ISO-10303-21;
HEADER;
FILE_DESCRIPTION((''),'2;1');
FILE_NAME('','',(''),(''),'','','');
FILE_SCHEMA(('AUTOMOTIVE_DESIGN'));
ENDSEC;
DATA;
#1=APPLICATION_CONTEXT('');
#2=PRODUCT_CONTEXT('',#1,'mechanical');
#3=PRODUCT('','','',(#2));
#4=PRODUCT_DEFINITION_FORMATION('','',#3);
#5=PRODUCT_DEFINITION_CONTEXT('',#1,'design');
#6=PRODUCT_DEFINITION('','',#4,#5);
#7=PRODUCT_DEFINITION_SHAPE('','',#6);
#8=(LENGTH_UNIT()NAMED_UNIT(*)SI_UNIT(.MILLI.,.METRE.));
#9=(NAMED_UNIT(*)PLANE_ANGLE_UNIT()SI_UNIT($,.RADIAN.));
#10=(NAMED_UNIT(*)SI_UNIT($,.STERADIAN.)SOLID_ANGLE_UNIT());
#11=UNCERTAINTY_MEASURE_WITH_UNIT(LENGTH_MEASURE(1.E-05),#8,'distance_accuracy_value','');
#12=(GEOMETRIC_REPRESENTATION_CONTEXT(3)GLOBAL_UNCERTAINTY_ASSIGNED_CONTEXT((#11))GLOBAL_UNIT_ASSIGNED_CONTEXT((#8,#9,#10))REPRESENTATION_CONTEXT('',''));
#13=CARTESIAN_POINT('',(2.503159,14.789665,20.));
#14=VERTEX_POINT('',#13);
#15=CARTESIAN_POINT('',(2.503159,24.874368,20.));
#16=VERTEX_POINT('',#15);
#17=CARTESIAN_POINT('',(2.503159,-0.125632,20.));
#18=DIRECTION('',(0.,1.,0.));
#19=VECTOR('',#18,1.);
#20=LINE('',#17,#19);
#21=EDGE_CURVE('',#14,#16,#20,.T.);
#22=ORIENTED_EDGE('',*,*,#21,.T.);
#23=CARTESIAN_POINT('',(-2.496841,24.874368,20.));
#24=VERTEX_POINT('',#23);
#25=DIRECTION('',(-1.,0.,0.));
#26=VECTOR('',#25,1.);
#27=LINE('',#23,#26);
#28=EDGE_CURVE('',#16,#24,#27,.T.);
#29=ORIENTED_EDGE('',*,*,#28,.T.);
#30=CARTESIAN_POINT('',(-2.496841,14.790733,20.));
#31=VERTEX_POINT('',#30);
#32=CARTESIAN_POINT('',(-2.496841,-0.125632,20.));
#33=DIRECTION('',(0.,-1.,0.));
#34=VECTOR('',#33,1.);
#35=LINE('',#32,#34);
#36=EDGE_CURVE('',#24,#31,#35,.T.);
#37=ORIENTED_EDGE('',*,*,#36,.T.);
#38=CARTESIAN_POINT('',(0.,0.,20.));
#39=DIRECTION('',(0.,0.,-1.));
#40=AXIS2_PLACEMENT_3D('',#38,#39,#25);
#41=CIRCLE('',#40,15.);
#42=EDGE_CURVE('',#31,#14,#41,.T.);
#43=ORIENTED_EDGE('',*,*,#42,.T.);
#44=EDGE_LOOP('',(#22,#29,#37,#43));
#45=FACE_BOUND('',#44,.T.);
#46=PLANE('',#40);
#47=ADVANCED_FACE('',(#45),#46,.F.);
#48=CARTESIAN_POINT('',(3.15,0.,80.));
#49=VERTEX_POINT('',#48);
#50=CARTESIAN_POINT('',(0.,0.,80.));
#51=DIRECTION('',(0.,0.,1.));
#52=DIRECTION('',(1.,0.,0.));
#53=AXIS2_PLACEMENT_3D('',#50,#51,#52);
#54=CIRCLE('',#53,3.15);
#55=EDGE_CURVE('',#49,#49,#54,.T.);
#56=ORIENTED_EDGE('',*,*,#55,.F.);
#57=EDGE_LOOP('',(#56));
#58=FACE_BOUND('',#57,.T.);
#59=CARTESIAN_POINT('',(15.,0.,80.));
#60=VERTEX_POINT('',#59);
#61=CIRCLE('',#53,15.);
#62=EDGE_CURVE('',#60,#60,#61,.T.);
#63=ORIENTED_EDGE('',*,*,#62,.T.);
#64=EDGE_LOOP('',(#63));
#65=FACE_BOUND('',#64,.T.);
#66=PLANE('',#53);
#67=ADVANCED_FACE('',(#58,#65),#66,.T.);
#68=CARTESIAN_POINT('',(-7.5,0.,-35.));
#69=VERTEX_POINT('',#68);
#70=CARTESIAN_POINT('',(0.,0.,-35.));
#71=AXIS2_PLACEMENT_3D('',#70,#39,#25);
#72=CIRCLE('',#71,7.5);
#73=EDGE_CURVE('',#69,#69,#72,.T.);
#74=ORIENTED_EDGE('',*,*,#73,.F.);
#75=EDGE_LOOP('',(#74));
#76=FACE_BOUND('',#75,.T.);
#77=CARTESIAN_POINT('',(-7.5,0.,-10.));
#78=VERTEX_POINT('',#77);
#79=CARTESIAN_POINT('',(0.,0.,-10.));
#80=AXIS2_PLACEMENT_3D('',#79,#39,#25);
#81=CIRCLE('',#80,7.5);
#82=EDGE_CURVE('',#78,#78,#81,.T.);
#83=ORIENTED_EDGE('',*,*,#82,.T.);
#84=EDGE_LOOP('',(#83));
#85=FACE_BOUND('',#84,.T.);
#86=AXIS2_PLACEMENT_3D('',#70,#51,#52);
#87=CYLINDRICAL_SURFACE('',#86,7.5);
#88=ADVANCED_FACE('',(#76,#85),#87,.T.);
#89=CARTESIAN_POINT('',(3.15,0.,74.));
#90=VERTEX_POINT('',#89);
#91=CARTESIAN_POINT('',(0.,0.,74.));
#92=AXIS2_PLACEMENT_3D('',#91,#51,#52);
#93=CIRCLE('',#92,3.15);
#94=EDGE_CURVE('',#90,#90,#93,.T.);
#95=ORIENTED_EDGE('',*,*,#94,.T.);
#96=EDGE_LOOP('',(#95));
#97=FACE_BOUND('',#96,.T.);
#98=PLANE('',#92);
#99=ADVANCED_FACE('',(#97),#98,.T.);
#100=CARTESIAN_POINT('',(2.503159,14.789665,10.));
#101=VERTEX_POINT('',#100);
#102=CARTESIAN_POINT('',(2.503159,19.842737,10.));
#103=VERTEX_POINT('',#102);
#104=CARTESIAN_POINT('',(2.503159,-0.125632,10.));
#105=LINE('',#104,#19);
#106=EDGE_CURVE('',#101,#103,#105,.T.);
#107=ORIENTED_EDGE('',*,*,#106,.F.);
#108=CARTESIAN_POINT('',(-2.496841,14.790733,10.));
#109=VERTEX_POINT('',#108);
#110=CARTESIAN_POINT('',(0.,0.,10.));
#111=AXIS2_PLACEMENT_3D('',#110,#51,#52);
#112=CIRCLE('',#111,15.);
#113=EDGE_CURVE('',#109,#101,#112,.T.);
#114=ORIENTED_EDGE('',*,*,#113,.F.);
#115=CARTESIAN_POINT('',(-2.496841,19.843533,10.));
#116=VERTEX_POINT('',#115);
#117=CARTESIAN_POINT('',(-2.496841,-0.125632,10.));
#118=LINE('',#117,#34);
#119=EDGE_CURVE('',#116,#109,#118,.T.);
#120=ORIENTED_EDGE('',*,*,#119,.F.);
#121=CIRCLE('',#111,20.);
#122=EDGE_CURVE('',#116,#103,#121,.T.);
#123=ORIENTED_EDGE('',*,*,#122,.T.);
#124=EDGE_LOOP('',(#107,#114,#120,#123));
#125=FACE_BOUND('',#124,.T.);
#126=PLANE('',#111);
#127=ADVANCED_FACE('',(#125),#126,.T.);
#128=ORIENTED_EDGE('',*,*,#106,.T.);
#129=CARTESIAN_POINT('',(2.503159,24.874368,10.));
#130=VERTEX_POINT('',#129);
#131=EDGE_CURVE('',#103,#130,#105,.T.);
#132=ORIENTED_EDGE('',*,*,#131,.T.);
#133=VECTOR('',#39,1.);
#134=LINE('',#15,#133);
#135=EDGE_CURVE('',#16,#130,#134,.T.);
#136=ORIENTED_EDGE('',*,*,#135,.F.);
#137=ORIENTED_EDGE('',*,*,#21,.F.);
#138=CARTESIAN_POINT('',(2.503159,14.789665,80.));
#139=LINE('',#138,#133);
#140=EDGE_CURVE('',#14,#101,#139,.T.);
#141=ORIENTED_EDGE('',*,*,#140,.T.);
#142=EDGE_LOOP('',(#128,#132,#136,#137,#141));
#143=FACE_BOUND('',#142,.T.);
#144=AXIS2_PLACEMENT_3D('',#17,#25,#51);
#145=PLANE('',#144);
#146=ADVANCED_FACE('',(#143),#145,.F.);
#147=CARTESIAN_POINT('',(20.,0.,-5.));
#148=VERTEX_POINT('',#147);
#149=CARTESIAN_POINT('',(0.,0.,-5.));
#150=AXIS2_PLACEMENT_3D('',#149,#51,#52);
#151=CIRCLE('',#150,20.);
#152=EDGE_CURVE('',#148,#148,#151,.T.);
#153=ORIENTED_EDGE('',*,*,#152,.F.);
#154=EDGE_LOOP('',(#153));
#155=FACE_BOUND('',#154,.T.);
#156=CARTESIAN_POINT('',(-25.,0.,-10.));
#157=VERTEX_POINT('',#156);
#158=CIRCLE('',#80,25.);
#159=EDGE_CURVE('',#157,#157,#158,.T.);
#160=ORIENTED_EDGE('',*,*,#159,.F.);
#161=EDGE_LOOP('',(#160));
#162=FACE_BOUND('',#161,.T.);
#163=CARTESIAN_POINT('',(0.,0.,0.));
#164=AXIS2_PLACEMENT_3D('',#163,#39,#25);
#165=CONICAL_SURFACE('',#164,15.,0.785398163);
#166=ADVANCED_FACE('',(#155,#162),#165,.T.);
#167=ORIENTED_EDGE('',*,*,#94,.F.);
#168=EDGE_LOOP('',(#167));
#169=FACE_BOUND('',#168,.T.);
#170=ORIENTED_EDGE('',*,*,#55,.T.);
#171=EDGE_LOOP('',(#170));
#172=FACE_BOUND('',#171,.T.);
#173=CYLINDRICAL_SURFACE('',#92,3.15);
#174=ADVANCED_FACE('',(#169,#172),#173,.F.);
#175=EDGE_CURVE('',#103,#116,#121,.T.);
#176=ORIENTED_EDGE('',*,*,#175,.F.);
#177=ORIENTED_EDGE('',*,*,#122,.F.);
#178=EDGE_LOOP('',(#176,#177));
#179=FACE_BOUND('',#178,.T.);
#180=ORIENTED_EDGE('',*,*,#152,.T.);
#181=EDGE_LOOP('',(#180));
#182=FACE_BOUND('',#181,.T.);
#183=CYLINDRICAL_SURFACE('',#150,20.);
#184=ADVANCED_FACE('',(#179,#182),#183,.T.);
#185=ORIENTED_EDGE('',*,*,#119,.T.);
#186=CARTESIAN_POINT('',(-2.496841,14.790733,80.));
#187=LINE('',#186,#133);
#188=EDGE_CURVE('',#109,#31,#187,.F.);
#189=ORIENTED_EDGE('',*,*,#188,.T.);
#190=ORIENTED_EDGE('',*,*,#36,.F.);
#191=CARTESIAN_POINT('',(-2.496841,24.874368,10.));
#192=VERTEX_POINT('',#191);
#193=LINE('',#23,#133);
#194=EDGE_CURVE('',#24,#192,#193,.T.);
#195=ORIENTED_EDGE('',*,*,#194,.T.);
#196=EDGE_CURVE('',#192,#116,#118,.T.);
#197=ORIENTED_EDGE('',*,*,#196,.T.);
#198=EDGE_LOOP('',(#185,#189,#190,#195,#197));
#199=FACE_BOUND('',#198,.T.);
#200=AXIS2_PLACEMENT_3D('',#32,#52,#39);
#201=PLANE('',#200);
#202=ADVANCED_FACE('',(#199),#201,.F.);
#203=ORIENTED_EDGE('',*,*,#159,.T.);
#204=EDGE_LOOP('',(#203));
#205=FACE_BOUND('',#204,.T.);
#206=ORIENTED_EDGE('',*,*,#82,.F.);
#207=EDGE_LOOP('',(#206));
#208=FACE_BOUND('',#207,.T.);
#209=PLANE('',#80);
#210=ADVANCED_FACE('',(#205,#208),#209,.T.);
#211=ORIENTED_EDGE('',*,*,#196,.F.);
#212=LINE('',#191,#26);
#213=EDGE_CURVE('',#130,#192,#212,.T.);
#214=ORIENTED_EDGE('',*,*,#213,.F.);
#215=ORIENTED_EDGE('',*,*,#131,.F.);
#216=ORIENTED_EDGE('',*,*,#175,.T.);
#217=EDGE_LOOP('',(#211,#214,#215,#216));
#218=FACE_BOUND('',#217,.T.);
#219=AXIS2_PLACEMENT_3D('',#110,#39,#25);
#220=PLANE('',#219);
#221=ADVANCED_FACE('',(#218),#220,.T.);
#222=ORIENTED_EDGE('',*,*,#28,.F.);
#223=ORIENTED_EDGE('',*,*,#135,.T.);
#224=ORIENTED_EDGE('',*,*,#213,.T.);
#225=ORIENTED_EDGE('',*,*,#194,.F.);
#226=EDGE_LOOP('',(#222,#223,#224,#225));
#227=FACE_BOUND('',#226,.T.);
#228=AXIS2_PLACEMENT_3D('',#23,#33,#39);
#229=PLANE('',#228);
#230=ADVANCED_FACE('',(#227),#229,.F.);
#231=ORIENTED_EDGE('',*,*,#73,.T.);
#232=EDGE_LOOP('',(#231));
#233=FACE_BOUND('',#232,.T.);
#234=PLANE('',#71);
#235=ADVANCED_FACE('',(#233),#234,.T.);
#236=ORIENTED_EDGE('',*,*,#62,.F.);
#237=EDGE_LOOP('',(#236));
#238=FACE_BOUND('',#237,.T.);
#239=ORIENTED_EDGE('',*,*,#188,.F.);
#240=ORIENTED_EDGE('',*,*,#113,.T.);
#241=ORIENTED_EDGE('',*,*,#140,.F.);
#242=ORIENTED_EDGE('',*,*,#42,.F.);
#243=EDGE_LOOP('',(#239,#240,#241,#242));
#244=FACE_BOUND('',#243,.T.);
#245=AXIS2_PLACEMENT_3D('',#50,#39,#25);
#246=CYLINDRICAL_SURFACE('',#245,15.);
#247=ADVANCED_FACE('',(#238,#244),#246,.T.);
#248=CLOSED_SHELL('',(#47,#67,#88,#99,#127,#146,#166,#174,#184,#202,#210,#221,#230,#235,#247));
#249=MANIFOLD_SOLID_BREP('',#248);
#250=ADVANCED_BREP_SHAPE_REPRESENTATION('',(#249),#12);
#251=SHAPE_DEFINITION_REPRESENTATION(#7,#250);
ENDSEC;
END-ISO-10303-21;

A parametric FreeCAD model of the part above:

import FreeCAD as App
import Part
import Sketcher
from FreeCAD import Vector

doc = App.newDocument("Part")
params = doc.addObject("Spreadsheet::Sheet", "Params")
for row, (alias, value) in enumerate([
    ("sketch1_diameter", "30 mm"),
    ("pad1_length", "80 mm"),
    ("sketch2_diameter", "30 mm"),
    ("sketch3_diameter", "50 mm"),
    ("sketch4_diameter", "15 mm"),
    ("pad2_length", "25 mm"),
    ("sketch5_width", "5 mm"),
    ("sketch5_height", "25 mm"),
    ("pad3_length", "10 mm"),
    ("sketch6_diameter", "6.3 mm"),
    ("pocket1_length", "6 mm"),
    ("sketch7_diameter", "40 mm"),
    ("pad4_length", "15 mm"),
], start=1):
    params.set(f"A{row}", alias)
    params.set(f"B{row}", "=" + value)
    params.setAlias(f"B{row}", alias)

body = doc.addObject("PartDesign::Body", "Body")

sketch1 = body.newObject("Sketcher::SketchObject", "Sketch")
sketch1.AttachmentSupport = (doc.getObject("XY_Plane"), [""])
sketch1.MapMode = "FlatFace"
sketch1.addGeometry(Part.Circle(Vector(0, 0, 0), Vector(0, 0, 1), 15), False)
sketch1.addConstraint([
    Sketcher.Constraint("Coincident", 0, 3, -1, 1),
    Sketcher.Constraint("Diameter", 0, 30.0),
])
sketch1.setExpression("Constraints[1]", "Params.sketch1_diameter")
pad1 = body.newObject("PartDesign::Pad", "Pad")
pad1.Profile = sketch1
pad1.setExpression("Length", "Params.pad1_length")

sketch2 = body.newObject("Sketcher::SketchObject", "Sketch001")
sketch2.AttachmentSupport = (doc.getObject("XY_Plane"), [""])
sketch2.MapMode = "FlatFace"
sketch2.addGeometry(Part.Circle(Vector(0, 0, 0), Vector(0, 0, 1), 15), False)
sketch2.addConstraint([
    Sketcher.Constraint("Coincident", 0, 3, -1, 1),
    Sketcher.Constraint("Diameter", 0, 30.0),
])
sketch2.setExpression("Constraints[1]", "Params.sketch2_diameter")

sketch3 = body.newObject("Sketcher::SketchObject", "Sketch002")
sketch3.AttachmentSupport = (doc.getObject("XY_Plane"), [""])
sketch3.MapMode = "FlatFace"
sketch3.AttachmentOffset = App.Placement(Vector(0, 0, -10), App.Rotation())
sketch3.addGeometry(Part.Circle(Vector(0, 0, 0), Vector(0, 0, 1), 25), False)
sketch3.addConstraint([
    Sketcher.Constraint("Coincident", 0, 3, -1, 1),
    Sketcher.Constraint("Diameter", 0, 50.0),
])
sketch3.setExpression("Constraints[1]", "Params.sketch3_diameter")

additiveloft = body.newObject("PartDesign::AdditiveLoft", "AdditiveLoft")
additiveloft.Profile = sketch2
additiveloft.Sections = [sketch3]

sketch4 = body.newObject("Sketcher::SketchObject", "Sketch003")
sketch4.AttachmentSupport = (doc.getObject("XY_Plane"), [""])
sketch4.MapMode = "FlatFace"
sketch4.AttachmentOffset = App.Placement(Vector(0, 0, -10), App.Rotation())
sketch4.addGeometry(Part.Circle(Vector(0, 0, 0), Vector(0, 0, 1), 7.5), False)
sketch4.addConstraint([
    Sketcher.Constraint("Coincident", 0, 3, -1, 1),
    Sketcher.Constraint("Diameter", 0, 15.0),
])
sketch4.setExpression("Constraints[1]", "Params.sketch4_diameter")
pad2 = body.newObject("PartDesign::Pad", "Pad001")
pad2.Profile = sketch4
pad2.setExpression("Length", "Params.pad2_length")
pad2.Reversed = True

sketch5 = body.newObject("Sketcher::SketchObject", "Sketch004")
sketch5.AttachmentSupport = (doc.getObject("XY_Plane"), [""])
sketch5.MapMode = "FlatFace"
sketch5.AttachmentOffset = App.Placement(Vector(0, 0, 10), App.Rotation())
sketch5.addGeometry([
    Part.LineSegment(Vector(-2.496841, 24.874368, 0), Vector(-2.496841, -0.125632, 0)),
    Part.LineSegment(Vector(-2.496841, -0.125632, 0), Vector(2.503159, -0.125632, 0)),
    Part.LineSegment(Vector(2.503159, -0.125632, 0), Vector(2.503159, 24.874368, 0)),
    Part.LineSegment(Vector(2.503159, 24.874368, 0), Vector(-2.496841, 24.874368, 0)),
], False)
sketch5.addConstraint([
    Sketcher.Constraint("Coincident", 0, 2, 1, 1),
    Sketcher.Constraint("Coincident", 1, 2, 2, 1),
    Sketcher.Constraint("Coincident", 2, 2, 3, 1),
    Sketcher.Constraint("Coincident", 3, 2, 0, 1),
    Sketcher.Constraint("Vertical", 0),
    Sketcher.Constraint("Horizontal", 1),
    Sketcher.Constraint("Vertical", 2),
    Sketcher.Constraint("Horizontal", 3),
    Sketcher.Constraint("DistanceX", 1, 1, 1, 2, 5.0),
    Sketcher.Constraint("DistanceY", 0, 2, 0, 1, 25.0),
    Sketcher.Constraint("DistanceX", 0, 2, -1, 1, 2.496841),
    Sketcher.Constraint("DistanceY", 0, 2, -1, 1, 0.125632),
])
sketch5.setExpression("Constraints[8]", "Params.sketch5_width")
sketch5.setExpression("Constraints[9]", "Params.sketch5_height")
pad3 = body.newObject("PartDesign::Pad", "Pad002")
pad3.Profile = sketch5
pad3.setExpression("Length", "Params.pad3_length")

sketch6 = body.newObject("Sketcher::SketchObject", "Sketch005")
sketch6.AttachmentSupport = (doc.getObject("XY_Plane"), [""])
sketch6.MapMode = "FlatFace"
sketch6.AttachmentOffset = App.Placement(Vector(0, 0, 80), App.Rotation())
sketch6.addGeometry(Part.Circle(Vector(0, 0, 0), Vector(0, 0, 1), 3.15), False)
sketch6.addConstraint([
    Sketcher.Constraint("Coincident", 0, 3, -1, 1),
    Sketcher.Constraint("Diameter", 0, 6.3),
])
sketch6.setExpression("Constraints[1]", "Params.sketch6_diameter")
pocket1 = body.newObject("PartDesign::Pocket", "Pocket")
pocket1.Profile = sketch6
pocket1.setExpression("Length", "Params.pocket1_length")

sketch7 = body.newObject("Sketcher::SketchObject", "Sketch006")
sketch7.AttachmentSupport = (doc.getObject("XY_Plane"), [""])
sketch7.MapMode = "FlatFace"
sketch7.AttachmentOffset = App.Placement(Vector(0, 0, 10), App.Rotation())
sketch7.addGeometry(Part.Circle(Vector(0, 0, 0), Vector(0, 0, 1), 20), False)
sketch7.addConstraint([
    Sketcher.Constraint("Coincident", 0, 3, -1, 1),
    Sketcher.Constraint("Diameter", 0, 40.0),
])
sketch7.setExpression("Constraints[1]", "Params.sketch7_diameter")
pad4 = body.newObject("PartDesign::Pad", "Pad003")
pad4.Profile = sketch7
pad4.setExpression("Length", "Params.pad4_length")
pad4.Reversed = True

doc.recompute()
